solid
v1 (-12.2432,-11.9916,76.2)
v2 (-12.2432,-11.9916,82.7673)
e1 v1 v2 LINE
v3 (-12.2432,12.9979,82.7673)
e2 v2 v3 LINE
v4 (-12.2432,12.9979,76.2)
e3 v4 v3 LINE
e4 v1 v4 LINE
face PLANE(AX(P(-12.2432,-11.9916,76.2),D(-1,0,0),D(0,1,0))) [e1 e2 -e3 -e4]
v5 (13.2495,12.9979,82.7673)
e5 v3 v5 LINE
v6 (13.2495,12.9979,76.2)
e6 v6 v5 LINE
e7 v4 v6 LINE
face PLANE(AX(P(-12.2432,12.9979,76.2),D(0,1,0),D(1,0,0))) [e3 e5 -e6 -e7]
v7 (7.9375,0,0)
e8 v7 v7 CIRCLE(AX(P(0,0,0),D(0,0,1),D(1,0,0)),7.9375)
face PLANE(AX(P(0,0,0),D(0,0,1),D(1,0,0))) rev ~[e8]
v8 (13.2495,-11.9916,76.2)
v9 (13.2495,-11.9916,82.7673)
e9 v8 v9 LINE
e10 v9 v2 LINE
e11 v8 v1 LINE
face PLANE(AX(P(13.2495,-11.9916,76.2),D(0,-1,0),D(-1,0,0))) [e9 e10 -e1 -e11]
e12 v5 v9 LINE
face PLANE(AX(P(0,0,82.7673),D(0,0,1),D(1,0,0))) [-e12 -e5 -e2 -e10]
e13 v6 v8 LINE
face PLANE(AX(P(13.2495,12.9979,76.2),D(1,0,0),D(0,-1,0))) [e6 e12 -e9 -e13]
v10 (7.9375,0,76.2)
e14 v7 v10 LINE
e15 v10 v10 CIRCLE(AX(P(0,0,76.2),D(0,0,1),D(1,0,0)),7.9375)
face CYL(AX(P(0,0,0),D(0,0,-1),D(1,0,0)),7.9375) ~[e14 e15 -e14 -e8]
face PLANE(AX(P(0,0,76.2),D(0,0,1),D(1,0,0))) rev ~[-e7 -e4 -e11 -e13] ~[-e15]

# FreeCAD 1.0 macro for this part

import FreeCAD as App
import Part
import Sketcher

V = App.Vector
Q = App.Units.Quantity

doc = App.newDocument("Part")
body = doc.addObject("PartDesign::Body", "Body")

# Sketch on XY plane
sketch1 = body.newObject("Sketcher::SketchObject", "Sketch")
sketch1.AttachmentSupport = (doc.getObject("XY_Plane"), [""])
sketch1.MapMode = "FlatFace"
sketch1.addGeometry(Part.Circle(V(0, 0, 0), V(0, 0, 1), 8), False)
sketch1.addConstraint(Sketcher.Constraint("Coincident", 0, 3, -1, 1))
sketch1.addConstraint(Sketcher.Constraint("Diameter", 0, Q("0.625 in")))
pad1 = body.newObject("PartDesign::Pad", "Pad")
pad1.Profile = sketch1
pad1.Length = Q("3 in")

# Sketch on XY plane
sketch2 = body.newObject("Sketcher::SketchObject", "Sketch001")
sketch2.AttachmentSupport = (doc.getObject("XY_Plane"), [""])
sketch2.MapMode = "FlatFace"
sketch2.AttachmentOffset = App.Placement(V(0, 0, 3 * 25.4), App.Rotation())
sketch2.addGeometry(Part.LineSegment(V(13, 13, 0), V(-12, 13, 0)), False)
sketch2.addGeometry(Part.LineSegment(V(-12, 13, 0), V(-12, -12, 0)), False)
sketch2.addGeometry(Part.LineSegment(V(-12, -12, 0), V(13, -12, 0)), False)
sketch2.addGeometry(Part.LineSegment(V(13, -12, 0), V(13, 13, 0)), False)
sketch2.addConstraint(Sketcher.Constraint("Coincident", 0, 2, 1, 1))
sketch2.addConstraint(Sketcher.Constraint("Coincident", 1, 2, 2, 1))
sketch2.addConstraint(Sketcher.Constraint("Coincident", 2, 2, 3, 1))
sketch2.addConstraint(Sketcher.Constraint("Coincident", 3, 2, 0, 1))
sketch2.addConstraint(Sketcher.Constraint("Horizontal", 0))
sketch2.addConstraint(Sketcher.Constraint("Vertical", 1))
sketch2.addConstraint(Sketcher.Constraint("Horizontal", 2))
sketch2.addConstraint(Sketcher.Constraint("Vertical", 3))
sketch2.addConstraint(Sketcher.Constraint("DistanceX", 0, 2, 0, 1, 25.4927))
sketch2.addConstraint(Sketcher.Constraint("DistanceY", 1, 2, 1, 1, 24.9895))
sketch2.addConstraint(Sketcher.Constraint("DistanceY", 1, 2, -1, 1, Q("0.4721 in")))
sketch2.addConstraint(Sketcher.Constraint("DistanceX", 0, 2, -1, 1, 12.2432))
pad2 = body.newObject("PartDesign::Pad", "Pad001")
pad2.Profile = sketch2
pad2.Length = 6.5673

doc.recompute()
